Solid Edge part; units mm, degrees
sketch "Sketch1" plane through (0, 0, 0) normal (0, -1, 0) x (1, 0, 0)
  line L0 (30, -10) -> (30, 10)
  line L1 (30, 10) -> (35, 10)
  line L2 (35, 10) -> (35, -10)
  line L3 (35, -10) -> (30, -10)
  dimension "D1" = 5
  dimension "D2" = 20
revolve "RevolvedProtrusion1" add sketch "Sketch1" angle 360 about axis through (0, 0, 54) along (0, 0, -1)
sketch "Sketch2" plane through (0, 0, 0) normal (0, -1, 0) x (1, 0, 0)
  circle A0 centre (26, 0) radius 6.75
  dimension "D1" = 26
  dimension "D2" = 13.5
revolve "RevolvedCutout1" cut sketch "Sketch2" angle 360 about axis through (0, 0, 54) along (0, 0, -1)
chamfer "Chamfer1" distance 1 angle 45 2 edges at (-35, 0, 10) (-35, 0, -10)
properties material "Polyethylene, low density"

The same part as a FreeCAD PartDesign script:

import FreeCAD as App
import Part
import Sketcher
from FreeCAD import Vector


def edges_at(feature, points):
    """Names of the edges that pass closest to the given points."""
    edges = feature.Shape.Edges
    near = lambda p: min(range(len(edges)), key=lambda i: edges[i].distToShape(Part.Vertex(*p))[0])
    return sorted({f"Edge{near(p) + 1}" for p in points})


def add_polygon(sketch, points):
    """Adds a closed chain of lines whose ends are joined by coincident constraints."""
    first, n = sketch.GeometryCount, len(points)
    for a, b in zip(points, points[1:] + points[:1]):
        sketch.addGeometry(Part.LineSegment(App.Vector(*a, 0), App.Vector(*b, 0)), False)
    for i in range(n):
        sketch.addConstraint(Sketcher.Constraint("Coincident", first + i, 2, first + (i + 1) % n, 1))

doc = App.newDocument("Part")
body = doc.addObject("PartDesign::Body", "Body")

# Sketch on XZ plane
sketch1 = body.newObject("Sketcher::SketchObject", "Sketch")
sketch1.AttachmentSupport = (doc.getObject("XZ_Plane"), [""])
sketch1.MapMode = "FlatFace"
add_polygon(sketch1, [(30, 10), (30, -10), (35, -10), (35, 10)])  # lines 0-3
sketch1.addConstraint([
    Sketcher.Constraint("Vertical", 0),
    Sketcher.Constraint("Horizontal", 1),
    Sketcher.Constraint("Vertical", 2),
    Sketcher.Constraint("Horizontal", 3),
    Sketcher.Constraint("DistanceX", -1, 1, 0, 2, 30.0),
    Sketcher.Constraint("DistanceX", -1, 1, 1, 2, 35.0),
    Sketcher.Constraint("DistanceY", 0, 2, 0, 1, 20.0),
    Sketcher.Constraint("DistanceY", 0, 2, -1, 1, 10.0),
])
revolution = body.newObject("PartDesign::Revolution", "Revolution")
revolution.Profile = sketch1
revolution.ReferenceAxis = (sketch1, ["V_Axis"])
revolution.Angle = 360

# Sketch on XZ plane
sketch2 = body.newObject("Sketcher::SketchObject", "Sketch001")
sketch2.AttachmentSupport = (doc.getObject("XZ_Plane"), [""])
sketch2.MapMode = "FlatFace"
sketch2.addGeometry(Part.Circle(Vector(26, 0, 0), Vector(0, 0, 1), 7), False)
sketch2.addConstraint([
    Sketcher.Constraint("PointOnObject", 0, 3, -1),
    Sketcher.Constraint("Diameter", 0, 13.5),
    Sketcher.Constraint("DistanceX", -1, 1, 0, 3, 26.0),
])
groove = body.newObject("PartDesign::Groove", "Groove")
groove.Profile = sketch2
groove.ReferenceAxis = (sketch2, ["V_Axis"])
groove.Angle = 360
doc.recompute()

chamfer = body.newObject("PartDesign::Chamfer", "Chamfer")
chamfer.Base = (groove, edges_at(groove, [(-35, 0, 10), (-35, 0, -10)]))
chamfer.Size = 1

doc.recompute()
